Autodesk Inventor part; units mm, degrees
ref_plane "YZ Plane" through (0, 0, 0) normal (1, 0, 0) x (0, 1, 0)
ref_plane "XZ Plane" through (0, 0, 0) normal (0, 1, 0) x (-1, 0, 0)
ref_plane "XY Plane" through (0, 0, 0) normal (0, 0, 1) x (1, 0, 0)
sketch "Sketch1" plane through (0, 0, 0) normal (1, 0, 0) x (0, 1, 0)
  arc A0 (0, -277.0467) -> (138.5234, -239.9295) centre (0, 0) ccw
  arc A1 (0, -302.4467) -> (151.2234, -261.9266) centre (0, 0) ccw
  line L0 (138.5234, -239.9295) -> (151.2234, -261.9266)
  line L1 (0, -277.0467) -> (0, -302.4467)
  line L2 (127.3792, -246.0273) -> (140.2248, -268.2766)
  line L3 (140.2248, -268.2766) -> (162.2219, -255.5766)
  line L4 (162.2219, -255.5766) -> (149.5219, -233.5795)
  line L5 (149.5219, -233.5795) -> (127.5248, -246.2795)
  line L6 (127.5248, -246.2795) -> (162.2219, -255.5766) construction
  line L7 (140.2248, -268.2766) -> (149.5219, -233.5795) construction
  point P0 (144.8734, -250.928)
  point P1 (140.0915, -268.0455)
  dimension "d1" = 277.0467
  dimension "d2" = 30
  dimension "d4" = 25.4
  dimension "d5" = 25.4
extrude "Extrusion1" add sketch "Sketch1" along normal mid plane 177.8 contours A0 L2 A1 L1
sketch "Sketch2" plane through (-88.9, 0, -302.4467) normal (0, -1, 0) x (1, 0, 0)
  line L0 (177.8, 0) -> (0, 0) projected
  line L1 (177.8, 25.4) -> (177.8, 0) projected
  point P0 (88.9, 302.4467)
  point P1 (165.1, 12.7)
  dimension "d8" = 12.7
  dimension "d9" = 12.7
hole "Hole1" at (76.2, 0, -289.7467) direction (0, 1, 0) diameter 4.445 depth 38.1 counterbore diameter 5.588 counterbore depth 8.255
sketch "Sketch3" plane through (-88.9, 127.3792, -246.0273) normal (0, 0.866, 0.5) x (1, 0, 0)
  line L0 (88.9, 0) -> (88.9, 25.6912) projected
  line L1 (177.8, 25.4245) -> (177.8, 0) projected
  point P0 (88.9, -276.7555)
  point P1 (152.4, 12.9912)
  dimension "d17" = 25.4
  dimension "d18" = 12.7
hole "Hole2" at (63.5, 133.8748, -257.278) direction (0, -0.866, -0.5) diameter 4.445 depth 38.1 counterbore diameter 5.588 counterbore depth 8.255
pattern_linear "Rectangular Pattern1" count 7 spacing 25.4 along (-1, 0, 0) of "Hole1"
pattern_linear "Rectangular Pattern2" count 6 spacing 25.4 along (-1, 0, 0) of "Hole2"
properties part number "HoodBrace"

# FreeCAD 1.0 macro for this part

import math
import FreeCAD as App
import Part
import Sketcher
Q = App.Units.Quantity

doc = App.newDocument("Part")
body = doc.addObject("PartDesign::Body", "Body")

# Sketch on YZ plane
sketch1 = body.newObject("Sketcher::SketchObject", "Sketch")
sketch1.AttachmentSupport = (doc.getObject("YZ_Plane"), [""])
sketch1.MapMode = "FlatFace"
sketch1.addGeometry(Part.ArcOfCircle(Part.Circle(App.Vector(0, 0, 0), App.Vector(0, 0, 1), 277), math.radians(-90), math.radians(-63)), False)
sketch1.addGeometry(Part.LineSegment(App.Vector(0, -277, 0), App.Vector(0, -302, 0)), False)
sketch1.addGeometry(Part.ArcOfCircle(Part.Circle(App.Vector(0, 0, 0), App.Vector(0, 0, 1), 302), math.radians(-90), math.radians(-62)), False)
sketch1.addGeometry(Part.LineSegment(App.Vector(140, -268, 0), App.Vector(127, -246, 0)), False)
sketch1.addConstraint(Sketcher.Constraint("Coincident", 0, 1, 1, 1))
sketch1.addConstraint(Sketcher.Constraint("Coincident", 1, 2, 2, 1))
sketch1.addConstraint(Sketcher.Constraint("Coincident", 2, 2, 3, 1))
sketch1.addConstraint(Sketcher.Constraint("Coincident", 3, 2, 0, 2))
sketch1.addConstraint(Sketcher.Constraint("Vertical", 1))
sketch1.addConstraint(Sketcher.Constraint("Coincident", 0, 3, -1, 1))
sketch1.addConstraint(Sketcher.Constraint("PointOnObject", 2, 3, -2))
sketch1.addConstraint(Sketcher.Constraint("PointOnObject", 0, 1, -2))
sketch1.addConstraint(Sketcher.Constraint("DistanceY", 1, 2, 1, 1, Q("1 in")))
sketch1.addConstraint(Sketcher.Constraint("Radius", 0, Q("277.0467 mm")))
sketch1.addConstraint(Sketcher.Constraint("Angle", 3, Q("120 deg")))
sketch1.addConstraint(Sketcher.Constraint("Radius", 2, Q("11.9074 in")))
sketch1.addConstraint(Sketcher.Constraint("DistanceX", -1, 1, 2, 2, Q("5.5154 in")))
pad1 = body.newObject("PartDesign::Pad", "Pad")
pad1.Profile = sketch1
pad1.Length = Q("7 in")
pad1.Midplane = True

# Sketch on XZ plane
sketch2 = body.newObject("Sketcher::SketchObject", "Sketch001")
sketch2.AttachmentSupport = (doc.getObject("XZ_Plane"), [""])
sketch2.MapMode = "FlatFace"
sketch2.addGeometry(Part.Circle(App.Vector(76.2, -289.7, 0), App.Vector(0, 0, 1), 2.2), False)
sketch2.addConstraint(Sketcher.Constraint("Diameter", 0, Q("0.175 in")))
sketch2.addConstraint(Sketcher.Constraint("DistanceX", -1, 1, 0, 3, Q("3 in")))
sketch2.addConstraint(Sketcher.Constraint("DistanceY", 0, 3, -1, 1, Q("289.7467 mm")))
doc.recompute()
hole = body.newObject("PartDesign::Hole", "Hole")
hole.Profile = sketch2
hole.ThreadType = "None"
hole.Diameter = Q("0.175 in")
hole.DepthType = "Dimension"
hole.Depth = Q("1.5 in")
hole.DrillPoint = "Flat"
hole.HoleCutType = "Counterbore"
hole.HoleCutDiameter = Q("0.22 in")
hole.HoleCutDepth = Q("0.325 in")

# Sketch on an angled plane
sketch3 = body.newObject("Sketcher::SketchObject", "Sketch002")
sketch3.Placement = App.Placement(App.Vector(0, -10.998542, -6.350011), App.Rotation(App.Vector(0, -0.5, 0.866025404), App.Vector(1, 0, 0), App.Vector(0, 0.866025404, 0.5), "ZXY"))
sketch3.addGeometry(Part.Circle(App.Vector(-289.7, 63.5, 0), App.Vector(0, 0, 1), 2.2), False)
sketch3.addConstraint(Sketcher.Constraint("Diameter", 0, Q("0.175 in")))
sketch3.addConstraint(Sketcher.Constraint("DistanceY", -1, 1, 0, 3, Q("2.5 in")))
sketch3.addConstraint(Sketcher.Constraint("DistanceX", 0, 3, -1, 1, Q("289.7467 mm")))
doc.recompute()
hole2 = body.newObject("PartDesign::Hole", "Hole001")
hole2.Profile = sketch3
hole2.ThreadType = "None"
hole2.Diameter = Q("0.175 in")
hole2.DepthType = "Dimension"
hole2.Depth = Q("1.5 in")
hole2.DrillPoint = "Flat"
hole2.HoleCutType = "Counterbore"
hole2.HoleCutDiameter = Q("0.22 in")
hole2.HoleCutDepth = Q("0.325 in")
doc.recompute()

linearpattern = body.newObject("PartDesign::LinearPattern", "LinearPattern")
linearpattern.Originals = [hole]
linearpattern.Direction = (doc.getObject("X_Axis"), [""])
linearpattern.Mode = "offset"
linearpattern.Offset = Q("1 in")
linearpattern.Occurrences = 7
linearpattern.Reversed = True
body.Tip = linearpattern
doc.recompute()

linearpattern2 = body.newObject("PartDesign::LinearPattern", "LinearPattern001")
linearpattern2.Originals = [hole2]
linearpattern2.Direction = (doc.getObject("X_Axis"), [""])
linearpattern2.Mode = "offset"
linearpattern2.Offset = Q("1 in")
linearpattern2.Occurrences = 6
linearpattern2.Reversed = True
body.Tip = linearpattern2

doc.recompute()
